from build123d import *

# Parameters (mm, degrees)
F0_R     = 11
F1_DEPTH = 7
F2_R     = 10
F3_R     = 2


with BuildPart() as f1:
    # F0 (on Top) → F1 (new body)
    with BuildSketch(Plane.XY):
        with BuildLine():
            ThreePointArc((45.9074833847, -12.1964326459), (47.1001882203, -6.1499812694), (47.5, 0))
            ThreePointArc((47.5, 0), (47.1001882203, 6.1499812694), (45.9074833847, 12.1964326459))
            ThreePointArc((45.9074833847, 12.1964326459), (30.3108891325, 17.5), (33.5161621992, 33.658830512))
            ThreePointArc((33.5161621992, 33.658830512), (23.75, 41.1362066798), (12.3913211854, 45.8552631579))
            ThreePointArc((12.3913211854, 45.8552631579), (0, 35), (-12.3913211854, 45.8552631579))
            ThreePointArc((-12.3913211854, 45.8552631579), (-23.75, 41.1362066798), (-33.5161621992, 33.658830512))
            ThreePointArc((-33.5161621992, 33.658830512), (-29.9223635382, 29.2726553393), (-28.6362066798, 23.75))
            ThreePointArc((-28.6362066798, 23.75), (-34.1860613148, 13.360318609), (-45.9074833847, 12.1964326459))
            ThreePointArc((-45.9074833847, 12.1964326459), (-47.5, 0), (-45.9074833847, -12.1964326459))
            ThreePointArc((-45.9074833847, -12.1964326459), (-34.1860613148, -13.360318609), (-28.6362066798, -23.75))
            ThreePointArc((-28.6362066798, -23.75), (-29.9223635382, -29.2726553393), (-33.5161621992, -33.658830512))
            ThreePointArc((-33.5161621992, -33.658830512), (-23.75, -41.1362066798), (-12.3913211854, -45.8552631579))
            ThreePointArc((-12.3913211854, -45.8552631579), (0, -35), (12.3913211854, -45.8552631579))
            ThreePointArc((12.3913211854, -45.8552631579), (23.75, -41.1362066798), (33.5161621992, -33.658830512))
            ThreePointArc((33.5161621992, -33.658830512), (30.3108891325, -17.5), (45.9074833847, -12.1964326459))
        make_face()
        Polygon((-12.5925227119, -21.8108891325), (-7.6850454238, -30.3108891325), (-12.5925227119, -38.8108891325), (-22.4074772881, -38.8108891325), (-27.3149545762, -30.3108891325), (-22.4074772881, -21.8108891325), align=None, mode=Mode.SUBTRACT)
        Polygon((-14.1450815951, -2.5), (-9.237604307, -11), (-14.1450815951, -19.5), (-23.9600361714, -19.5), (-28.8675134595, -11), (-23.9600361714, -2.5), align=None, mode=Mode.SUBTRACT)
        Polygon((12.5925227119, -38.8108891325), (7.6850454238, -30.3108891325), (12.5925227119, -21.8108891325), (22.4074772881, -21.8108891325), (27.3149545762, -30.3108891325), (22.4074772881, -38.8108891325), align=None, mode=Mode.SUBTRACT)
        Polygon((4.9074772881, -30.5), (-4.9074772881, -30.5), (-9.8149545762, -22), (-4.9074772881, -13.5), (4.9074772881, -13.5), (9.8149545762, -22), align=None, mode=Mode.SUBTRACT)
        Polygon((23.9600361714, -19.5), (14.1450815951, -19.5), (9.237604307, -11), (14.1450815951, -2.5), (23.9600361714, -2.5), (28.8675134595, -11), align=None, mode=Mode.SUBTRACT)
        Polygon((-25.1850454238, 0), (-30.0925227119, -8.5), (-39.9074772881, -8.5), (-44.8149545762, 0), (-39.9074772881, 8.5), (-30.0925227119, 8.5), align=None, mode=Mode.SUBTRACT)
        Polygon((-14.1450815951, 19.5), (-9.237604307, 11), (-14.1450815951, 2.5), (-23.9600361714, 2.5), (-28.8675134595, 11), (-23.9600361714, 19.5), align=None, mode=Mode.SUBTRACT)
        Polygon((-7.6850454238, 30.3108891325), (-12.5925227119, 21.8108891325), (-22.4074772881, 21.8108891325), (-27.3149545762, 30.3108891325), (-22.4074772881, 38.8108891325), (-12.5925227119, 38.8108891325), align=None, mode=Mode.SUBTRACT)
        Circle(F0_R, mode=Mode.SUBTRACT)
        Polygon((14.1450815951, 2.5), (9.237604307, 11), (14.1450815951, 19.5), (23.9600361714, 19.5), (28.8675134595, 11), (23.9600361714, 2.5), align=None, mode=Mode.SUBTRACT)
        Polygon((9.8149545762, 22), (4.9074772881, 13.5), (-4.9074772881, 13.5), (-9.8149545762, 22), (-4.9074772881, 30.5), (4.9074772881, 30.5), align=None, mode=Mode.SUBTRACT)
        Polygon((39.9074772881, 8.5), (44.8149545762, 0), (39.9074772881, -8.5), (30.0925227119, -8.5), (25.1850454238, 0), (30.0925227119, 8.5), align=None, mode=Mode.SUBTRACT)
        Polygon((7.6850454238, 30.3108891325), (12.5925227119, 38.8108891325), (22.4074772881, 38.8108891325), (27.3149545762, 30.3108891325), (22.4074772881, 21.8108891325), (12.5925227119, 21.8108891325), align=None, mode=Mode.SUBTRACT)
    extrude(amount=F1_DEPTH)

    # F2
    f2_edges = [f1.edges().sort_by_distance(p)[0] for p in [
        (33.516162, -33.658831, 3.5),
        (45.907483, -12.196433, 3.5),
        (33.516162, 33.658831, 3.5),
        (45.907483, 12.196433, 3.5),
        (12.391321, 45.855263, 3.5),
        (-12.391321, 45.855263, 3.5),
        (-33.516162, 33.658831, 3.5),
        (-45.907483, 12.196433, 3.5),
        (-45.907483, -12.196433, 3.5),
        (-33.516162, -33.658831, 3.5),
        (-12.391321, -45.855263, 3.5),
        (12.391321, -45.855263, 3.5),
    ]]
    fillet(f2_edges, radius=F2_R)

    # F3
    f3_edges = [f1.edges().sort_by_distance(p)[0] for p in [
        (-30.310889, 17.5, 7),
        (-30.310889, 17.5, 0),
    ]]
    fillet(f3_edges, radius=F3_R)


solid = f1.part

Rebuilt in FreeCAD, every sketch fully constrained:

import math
import FreeCAD as App
import Part
import Sketcher

V = App.Vector
Q = App.Units.Quantity


def edges_at(feature, points):
    """Names of the edges that pass closest to the given points."""
    edges = feature.Shape.Edges
    near = lambda p: min(range(len(edges)), key=lambda i: edges[i].distToShape(Part.Vertex(*p))[0])
    return sorted({f"Edge{near(p) + 1}" for p in points})


def add_polygon(sketch, points):
    """Adds a closed chain of lines whose ends are joined by coincident constraints."""
    first, n = sketch.GeometryCount, len(points)
    for a, b in zip(points, points[1:] + points[:1]):
        sketch.addGeometry(Part.LineSegment(App.Vector(*a, 0), App.Vector(*b, 0)), False)
    for i in range(n):
        sketch.addConstraint(Sketcher.Constraint("Coincident", first + i, 2, first + (i + 1) % n, 1))

doc = App.newDocument("Part")
body = doc.addObject("PartDesign::Body", "Body")

sketch1 = doc.addObject("Sketcher::SketchObject", "Sketch")
body.addObject(sketch1)
sketch1.AttachmentSupport = (doc.XY_Plane, [""])
sketch1.MapMode = "FlatFace"
sketch1.addGeometry(Part.ArcOfCircle(Part.Circle(V(0, 0, 0), V(0, 0, 1), 47), math.radians(-14.88), math.radians(0)), False)
sketch1.addGeometry(Part.ArcOfCircle(Part.Circle(V(0, 0, 0), V(0, 0, 1), 47), math.radians(0), math.radians(14.88)), False)
sketch1.addGeometry(Part.ArcOfCircle(Part.Circle(V(41, 24, 0), V(0, 0, 1), 12), math.radians(128), math.radians(292)), False)
sketch1.addGeometry(Part.ArcOfCircle(Part.Circle(V(0, 0, 0), V(0, 0, 1), 47), math.radians(45), math.radians(75)), False)
sketch1.addGeometry(Part.ArcOfCircle(Part.Circle(V(0, 48, 0), V(0, 0, 1), 12), math.radians(-172), math.radians(-8)), False)
sketch1.addGeometry(Part.ArcOfCircle(Part.Circle(V(0, 0, 0), V(0, 0, 1), 47), math.radians(105), math.radians(135)), False)
sketch1.addGeometry(Part.ArcOfCircle(Part.Circle(V(-41, 24, 0), V(0, 0, 1), 12), math.radians(0), math.radians(52)), False)
sketch1.addGeometry(Part.ArcOfCircle(Part.Circle(V(-41, 24, 0), V(0, 0, 1), 12), math.radians(-112), math.radians(0)), False)
sketch1.addGeometry(Part.ArcOfCircle(Part.Circle(V(0, 0, 0), V(0, 0, 1), 48), math.radians(165), math.radians(195)), False)
sketch1.addGeometry(Part.ArcOfCircle(Part.Circle(V(-41, -24, 0), V(0, 0, 1), 12), math.radians(0), math.radians(112)), False)
sketch1.addGeometry(Part.ArcOfCircle(Part.Circle(V(-41, -24, 0), V(0, 0, 1), 12), math.radians(-52), math.radians(0)), False)
sketch1.addGeometry(Part.ArcOfCircle(Part.Circle(V(0, 0, 0), V(0, 0, 1), 47), math.radians(-135), math.radians(-105)), False)
sketch1.addGeometry(Part.ArcOfCircle(Part.Circle(V(0, -48, 0), V(0, 0, 1), 12), math.radians(8), math.radians(172)), False)
sketch1.addGeometry(Part.ArcOfCircle(Part.Circle(V(0, 0, 0), V(0, 0, 1), 47), math.radians(-75), math.radians(-45)), False)
sketch1.addGeometry(Part.ArcOfCircle(Part.Circle(V(41, -24, 0), V(0, 0, 1), 12), math.radians(68), math.radians(232)), False)
add_polygon(sketch1, [(-22, -22), (-13, -22), (-8, -30), (-13, -39), (-22, -39), (-27, -30)])
add_polygon(sketch1, [(-24, -2), (-14, -2), (-9, -11), (-14, -20), (-24, -20), (-29, -11)])
add_polygon(sketch1, [(22, -39), (13, -39), (8, -30), (13, -22), (22, -22), (27, -30)])
add_polygon(sketch1, [(10, -22), (5, -30), (-5, -30), (-10, -22), (-5, -14), (5, -14)])
add_polygon(sketch1, [(29, -11), (24, -20), (14, -20), (9, -11), (14, -2), (24, -2)])
add_polygon(sketch1, [(-30, 8), (-25, 0), (-30, -8), (-40, -8), (-45, 0), (-40, 8)])
add_polygon(sketch1, [(-24, 20), (-14, 20), (-9, 11), (-14, 2), (-24, 2), (-29, 11)])
add_polygon(sketch1, [(-13, 39), (-8, 30), (-13, 22), (-22, 22), (-27, 30), (-22, 39)])
sketch1.addGeometry(Part.Circle(V(0, 0, 0), V(0, 0, 1), 11), False)
add_polygon(sketch1, [(24, 2), (14, 2), (9, 11), (14, 20), (24, 20), (29, 11)])
add_polygon(sketch1, [(30, 8), (40, 8), (45, 0), (40, -8), (30, -8), (25, 0)])
add_polygon(sketch1, [(5, 30), (10, 22), (5, 14), (-5, 14), (-10, 22), (-5, 30)])
add_polygon(sketch1, [(13, 22), (8, 30), (13, 39), (22, 39), (27, 30), (22, 22)])
sketch1.addConstraint([
    Sketcher.Constraint("Tangent", 0, 2, 1, 1),
    Sketcher.Constraint("Coincident", 1, 2, 2, 2),
    Sketcher.Constraint("Coincident", 2, 1, 3, 1),
    Sketcher.Constraint("Coincident", 3, 2, 4, 2),
    Sketcher.Constraint("Coincident", 4, 1, 5, 1),
    Sketcher.Constraint("Coincident", 5, 2, 6, 2),
    Sketcher.Constraint("Tangent", 6, 1, 7, 2),
    Sketcher.Constraint("Coincident", 7, 1, 8, 1),
    Sketcher.Constraint("Coincident", 8, 2, 9, 2),
    Sketcher.Constraint("Tangent", 9, 1, 10, 2),
    Sketcher.Constraint("Coincident", 10, 1, 11, 1),
    Sketcher.Constraint("Coincident", 11, 2, 12, 2),
    Sketcher.Constraint("Coincident", 12, 1, 13, 1),
    Sketcher.Constraint("Coincident", 13, 2, 14, 2),
    Sketcher.Constraint("Coincident", 14, 1, 0, 1),
    Sketcher.Constraint("Horizontal", 15),
    Sketcher.Constraint("Horizontal", 18),
    Sketcher.Constraint("Horizontal", 21),
    Sketcher.Constraint("Horizontal", 24),
    Sketcher.Constraint("Horizontal", 27),
    Sketcher.Constraint("Horizontal", 30),
    Sketcher.Constraint("Horizontal", 34),
    Sketcher.Constraint("Horizontal", 37),
    Sketcher.Constraint("Horizontal", 40),
    Sketcher.Constraint("Horizontal", 43),
    Sketcher.Constraint("Horizontal", 47),
    Sketcher.Constraint("Horizontal", 50),
    Sketcher.Constraint("Horizontal", 51),
    Sketcher.Constraint("Horizontal", 54),
    Sketcher.Constraint("Horizontal", 59),
    Sketcher.Constraint("Horizontal", 62),
    Sketcher.Constraint("Horizontal", 64),
    Sketcher.Constraint("Horizontal", 67),
    Sketcher.Constraint("Horizontal", 70),
    Sketcher.Constraint("Horizontal", 73),
    Sketcher.Constraint("Horizontal", 78),
    Sketcher.Constraint("Horizontal", 81),
    Sketcher.Constraint("Horizontal", 84),
    Sketcher.Constraint("Horizontal", 87),
    Sketcher.Constraint("Coincident", 0, 3, -1, 1),
    Sketcher.Constraint("Coincident", 3, 3, -1, 1),
    Sketcher.Constraint("Coincident", 5, 3, -1, 1),
    Sketcher.Constraint("Coincident", 8, 3, -1, 1),
    Sketcher.Constraint("Coincident", 11, 3, -1, 1),
    Sketcher.Constraint("Coincident", 13, 3, -1, 1),
    Sketcher.Constraint("Coincident", 63, 3, -1, 1),
    Sketcher.Constraint("Equal", 0, 1),
    Sketcher.Constraint("Equal", 1, 3),
    Sketcher.Constraint("Equal", 2, 4),
    Sketcher.Constraint("Equal", 3, 5),
    Sketcher.Constraint("Equal", 4, 6),
    Sketcher.Constraint("Equal", 6, 7),
    Sketcher.Constraint("Equal", 5, 8),
    Sketcher.Constraint("Equal", 7, 9),
    Sketcher.Constraint("Equal", 9, 10),
    Sketcher.Constraint("Equal", 8, 11),
    Sketcher.Constraint("Equal", 10, 12),
    Sketcher.Constraint("Equal", 11, 13),
    Sketcher.Constraint("Equal", 12, 14),
    Sketcher.Constraint("Symmetric", 2, 3, 9, 3, -1, 1),
    Sketcher.Constraint("Symmetric", 4, 3, 12, 3, -1, 1),
    Sketcher.Constraint("Symmetric", 6, 3, 14, 3, -1, 1),
    Sketcher.Constraint("Symmetric", 40, 2, 51, 2, -1, 1),
    Sketcher.Constraint("Symmetric", 41, 2, 52, 2, -1, 1),
    Sketcher.Constraint("Symmetric", 42, 2, 53, 2, -1, 1),
    Sketcher.Constraint("Symmetric", 44, 2, 55, 2, -1, 1),
    Sketcher.Constraint("Symmetric", 28, 2, 57, 2, -1, 1),
    Sketcher.Constraint("Symmetric", 29, 2, 58, 2, -1, 1),
    Sketcher.Constraint("Symmetric", 31, 2, 60, 2, -1, 1),
    Sketcher.Constraint("Symmetric", 32, 2, 61, 2, -1, 1),
    Sketcher.Constraint("Symmetric", 21, 2, 64, 2, -1, 1),
    Sketcher.Constraint("Symmetric", 22, 2, 65, 2, -1, 1),
    Sketcher.Constraint("Symmetric", 23, 2, 66, 2, -1, 1),
    Sketcher.Constraint("Symmetric", 25, 2, 68, 2, -1, 1),
    Sketcher.Constraint("Symmetric", 47, 2, 70, 2, -1, 1),
    Sketcher.Constraint("Symmetric", 48, 2, 71, 2, -1, 1),
    Sketcher.Constraint("Symmetric", 49, 2, 72, 2, -1, 1),
    Sketcher.Constraint("Symmetric", 45, 2, 74, 2, -1, 1),
    Sketcher.Constraint("Symmetric", 35, 2, 76, 2, -1, 1),
    Sketcher.Constraint("Symmetric", 36, 2, 77, 2, -1, 1),
    Sketcher.Constraint("Symmetric", 38, 2, 79, 2, -1, 1),
    Sketcher.Constraint("Symmetric", 33, 2, 80, 2, -1, 1),
    Sketcher.Constraint("Symmetric", 16, 2, 82, 2, -1, 1),
    Sketcher.Constraint("Symmetric", 17, 2, 83, 2, -1, 1),
    Sketcher.Constraint("Symmetric", 19, 2, 85, 2, -1, 1),
    Sketcher.Constraint("Symmetric", 20, 2, 86, 2, -1, 1),
    Sketcher.Constraint("Symmetric", 2, 3, 6, 3, -2),
    Sketcher.Constraint("Symmetric", 17, 2, 27, 2, -2),
    Sketcher.Constraint("Symmetric", 16, 2, 28, 2, -2),
    Sketcher.Constraint("Symmetric", 15, 2, 29, 2, -2),
    Sketcher.Constraint("Symmetric", 19, 2, 31, 2, -2),
    Sketcher.Constraint("Symmetric", 35, 2, 38, 2, -2),
    Sketcher.Constraint("Symmetric", 24, 2, 39, 2, -2),
    Sketcher.Constraint("Symmetric", 22, 2, 41, 2, -2),
    Sketcher.Constraint("Symmetric", 21, 2, 42, 2, -2),
    Sketcher.Constraint("Symmetric", 25, 2, 44, 2, -2),
    Sketcher.Constraint("Symmetric", 49, 2, 70, 2, -2),
    Sketcher.Constraint("PointOnObject", 4, 3, -2),
    Sketcher.Constraint("PointOnObject", 0, 2, -1),
    Sketcher.Constraint("PointOnObject", 45, 2, -1),
    Sketcher.Constraint("PointOnObject", 48, 2, -1),
    Sketcher.Constraint("Parallel", 16, 19),
    Sketcher.Constraint("Parallel", 17, 20),
    Sketcher.Constraint("Parallel", 19, 22),
    Sketcher.Constraint("Parallel", 20, 23),
    Sketcher.Constraint("Parallel", 22, 25),
    Sketcher.Constraint("Parallel", 23, 26),
    Sketcher.Constraint("Parallel", 25, 28),
    Sketcher.Constraint("Parallel", 28, 31),
    Sketcher.Constraint("Parallel", 29, 32),
    Sketcher.Constraint("Parallel", 32, 33),
    Sketcher.Constraint("Parallel", 31, 35),
    Sketcher.Constraint("Parallel", 33, 36),
    Sketcher.Constraint("Parallel", 35, 38),
    Sketcher.Constraint("Parallel", 38, 41),
    Sketcher.Constraint("Parallel", 41, 44),
    Sketcher.Constraint("Parallel", 44, 45),
    Sketcher.Constraint("Parallel", 42, 46),
    Sketcher.Constraint("Parallel", 45, 48),
    Sketcher.Constraint("Parallel", 52, 55),
    Sketcher.Constraint("Parallel", 53, 56),
    Sketcher.Constraint("Parallel", 55, 57),
    Sketcher.Constraint("Parallel", 57, 60),
    Sketcher.Constraint("Parallel", 65, 68),
    Sketcher.Constraint("Parallel", 66, 69),
    Sketcher.Constraint("Parallel", 71, 74),
    Sketcher.Constraint("Parallel", 72, 75),
    Sketcher.Constraint("Parallel", 74, 76),
    Sketcher.Constraint("Parallel", 76, 79),
    Sketcher.Constraint("Parallel", 79, 82),
    Sketcher.Constraint("Parallel", 82, 85),
    Sketcher.Constraint("Horizontal", 7, 3, 6, 1),
    Sketcher.Constraint("Horizontal", 14, 3, 9, 1),
    Sketcher.Constraint("Horizontal", 16, 2, 19, 2),
    Sketcher.Constraint("Horizontal", 22, 2, 25, 2),
    Sketcher.Constraint("Vertical", 15, 2, 17, 2),
    Sketcher.Constraint("Vertical", 21, 2, 23, 2),
    Sketcher.Constraint("Vertical", 34, 2, 36, 2),
    Sketcher.Constraint("Equal", 18, 21),
    Sketcher.Constraint("Equal", 30, 34),
    Sketcher.Constraint("Equal", 43, 47),
    Sketcher.Constraint("Equal", 20, 22),
    Sketcher.Constraint("Equal", 32, 33),
    Sketcher.Constraint("Equal", 44, 45),
    Sketcher.Constraint("Diameter", 63, 22.0),
    Sketcher.Constraint("Radius", 0, 47.5),
    Sketcher.Constraint("Radius", 2, 12.5),
    Sketcher.Constraint("Angle", 16, Q("-60 deg")),
    Sketcher.Constraint("DistanceY", 22, 2, -1, 1, 11.0),
    Sketcher.Constraint("DistanceY", 35, 2, -1, 1, 22.0),
    Sketcher.Constraint("DistanceY", -1, 1, 4, 3, 47.5),
    Sketcher.Constraint("DistanceY", 21, 2, -1, 1, 2.5),
    Sketcher.Constraint("DistanceY", -1, 1, 2, 3, 23.75),
    Sketcher.Constraint("DistanceX", 15, 1, 15, 2, 9.814955),
    Sketcher.Constraint("DistanceY", -1, 1, 2, 1, 33.658831),
    Sketcher.Constraint("DistanceY", 15, 2, -1, 1, 21.810889),
    Sketcher.Constraint("DistanceX", 21, 2, -1, 1, 14.145082),
    Sketcher.Constraint("DistanceX", 15, 2, -1, 1, 12.592523),
    Sketcher.Constraint("DistanceX", 45, 2, -1, 1, 25.185045),
])
pad1 = doc.addObject("PartDesign::Pad", "Pad")
body.addObject(pad1)
pad1.Profile = sketch1
pad1.Length = 7
doc.recompute()

fillet = doc.addObject("PartDesign::Fillet", "Fillet")
body.addObject(fillet)
fillet.Base = (pad1, edges_at(pad1, [
    (33.516, -33.659, 3.5),
    (45.907, -12.196, 3.5),
    (33.516, 33.659, 3.5),
    (45.907, 12.196, 3.5),
    (12.391, 45.855, 3.5),
    (-12.391, 45.855, 3.5),
    (-33.516, 33.659, 3.5),
    (-45.907, 12.196, 3.5),
    (-45.907, -12.196, 3.5),
    (-33.516, -33.659, 3.5),
    (-12.391, -45.855, 3.5),
    (12.391, -45.855, 3.5),
]))
fillet.Radius = 10
doc.recompute()

fillet2 = doc.addObject("PartDesign::Fillet", "Fillet001")
body.addObject(fillet2)
fillet2.Base = (fillet, edges_at(fillet, [(-31.604, 15.664, 7), (-31.604, 15.664, 0)]))
fillet2.Radius = 2

doc.recompute()
